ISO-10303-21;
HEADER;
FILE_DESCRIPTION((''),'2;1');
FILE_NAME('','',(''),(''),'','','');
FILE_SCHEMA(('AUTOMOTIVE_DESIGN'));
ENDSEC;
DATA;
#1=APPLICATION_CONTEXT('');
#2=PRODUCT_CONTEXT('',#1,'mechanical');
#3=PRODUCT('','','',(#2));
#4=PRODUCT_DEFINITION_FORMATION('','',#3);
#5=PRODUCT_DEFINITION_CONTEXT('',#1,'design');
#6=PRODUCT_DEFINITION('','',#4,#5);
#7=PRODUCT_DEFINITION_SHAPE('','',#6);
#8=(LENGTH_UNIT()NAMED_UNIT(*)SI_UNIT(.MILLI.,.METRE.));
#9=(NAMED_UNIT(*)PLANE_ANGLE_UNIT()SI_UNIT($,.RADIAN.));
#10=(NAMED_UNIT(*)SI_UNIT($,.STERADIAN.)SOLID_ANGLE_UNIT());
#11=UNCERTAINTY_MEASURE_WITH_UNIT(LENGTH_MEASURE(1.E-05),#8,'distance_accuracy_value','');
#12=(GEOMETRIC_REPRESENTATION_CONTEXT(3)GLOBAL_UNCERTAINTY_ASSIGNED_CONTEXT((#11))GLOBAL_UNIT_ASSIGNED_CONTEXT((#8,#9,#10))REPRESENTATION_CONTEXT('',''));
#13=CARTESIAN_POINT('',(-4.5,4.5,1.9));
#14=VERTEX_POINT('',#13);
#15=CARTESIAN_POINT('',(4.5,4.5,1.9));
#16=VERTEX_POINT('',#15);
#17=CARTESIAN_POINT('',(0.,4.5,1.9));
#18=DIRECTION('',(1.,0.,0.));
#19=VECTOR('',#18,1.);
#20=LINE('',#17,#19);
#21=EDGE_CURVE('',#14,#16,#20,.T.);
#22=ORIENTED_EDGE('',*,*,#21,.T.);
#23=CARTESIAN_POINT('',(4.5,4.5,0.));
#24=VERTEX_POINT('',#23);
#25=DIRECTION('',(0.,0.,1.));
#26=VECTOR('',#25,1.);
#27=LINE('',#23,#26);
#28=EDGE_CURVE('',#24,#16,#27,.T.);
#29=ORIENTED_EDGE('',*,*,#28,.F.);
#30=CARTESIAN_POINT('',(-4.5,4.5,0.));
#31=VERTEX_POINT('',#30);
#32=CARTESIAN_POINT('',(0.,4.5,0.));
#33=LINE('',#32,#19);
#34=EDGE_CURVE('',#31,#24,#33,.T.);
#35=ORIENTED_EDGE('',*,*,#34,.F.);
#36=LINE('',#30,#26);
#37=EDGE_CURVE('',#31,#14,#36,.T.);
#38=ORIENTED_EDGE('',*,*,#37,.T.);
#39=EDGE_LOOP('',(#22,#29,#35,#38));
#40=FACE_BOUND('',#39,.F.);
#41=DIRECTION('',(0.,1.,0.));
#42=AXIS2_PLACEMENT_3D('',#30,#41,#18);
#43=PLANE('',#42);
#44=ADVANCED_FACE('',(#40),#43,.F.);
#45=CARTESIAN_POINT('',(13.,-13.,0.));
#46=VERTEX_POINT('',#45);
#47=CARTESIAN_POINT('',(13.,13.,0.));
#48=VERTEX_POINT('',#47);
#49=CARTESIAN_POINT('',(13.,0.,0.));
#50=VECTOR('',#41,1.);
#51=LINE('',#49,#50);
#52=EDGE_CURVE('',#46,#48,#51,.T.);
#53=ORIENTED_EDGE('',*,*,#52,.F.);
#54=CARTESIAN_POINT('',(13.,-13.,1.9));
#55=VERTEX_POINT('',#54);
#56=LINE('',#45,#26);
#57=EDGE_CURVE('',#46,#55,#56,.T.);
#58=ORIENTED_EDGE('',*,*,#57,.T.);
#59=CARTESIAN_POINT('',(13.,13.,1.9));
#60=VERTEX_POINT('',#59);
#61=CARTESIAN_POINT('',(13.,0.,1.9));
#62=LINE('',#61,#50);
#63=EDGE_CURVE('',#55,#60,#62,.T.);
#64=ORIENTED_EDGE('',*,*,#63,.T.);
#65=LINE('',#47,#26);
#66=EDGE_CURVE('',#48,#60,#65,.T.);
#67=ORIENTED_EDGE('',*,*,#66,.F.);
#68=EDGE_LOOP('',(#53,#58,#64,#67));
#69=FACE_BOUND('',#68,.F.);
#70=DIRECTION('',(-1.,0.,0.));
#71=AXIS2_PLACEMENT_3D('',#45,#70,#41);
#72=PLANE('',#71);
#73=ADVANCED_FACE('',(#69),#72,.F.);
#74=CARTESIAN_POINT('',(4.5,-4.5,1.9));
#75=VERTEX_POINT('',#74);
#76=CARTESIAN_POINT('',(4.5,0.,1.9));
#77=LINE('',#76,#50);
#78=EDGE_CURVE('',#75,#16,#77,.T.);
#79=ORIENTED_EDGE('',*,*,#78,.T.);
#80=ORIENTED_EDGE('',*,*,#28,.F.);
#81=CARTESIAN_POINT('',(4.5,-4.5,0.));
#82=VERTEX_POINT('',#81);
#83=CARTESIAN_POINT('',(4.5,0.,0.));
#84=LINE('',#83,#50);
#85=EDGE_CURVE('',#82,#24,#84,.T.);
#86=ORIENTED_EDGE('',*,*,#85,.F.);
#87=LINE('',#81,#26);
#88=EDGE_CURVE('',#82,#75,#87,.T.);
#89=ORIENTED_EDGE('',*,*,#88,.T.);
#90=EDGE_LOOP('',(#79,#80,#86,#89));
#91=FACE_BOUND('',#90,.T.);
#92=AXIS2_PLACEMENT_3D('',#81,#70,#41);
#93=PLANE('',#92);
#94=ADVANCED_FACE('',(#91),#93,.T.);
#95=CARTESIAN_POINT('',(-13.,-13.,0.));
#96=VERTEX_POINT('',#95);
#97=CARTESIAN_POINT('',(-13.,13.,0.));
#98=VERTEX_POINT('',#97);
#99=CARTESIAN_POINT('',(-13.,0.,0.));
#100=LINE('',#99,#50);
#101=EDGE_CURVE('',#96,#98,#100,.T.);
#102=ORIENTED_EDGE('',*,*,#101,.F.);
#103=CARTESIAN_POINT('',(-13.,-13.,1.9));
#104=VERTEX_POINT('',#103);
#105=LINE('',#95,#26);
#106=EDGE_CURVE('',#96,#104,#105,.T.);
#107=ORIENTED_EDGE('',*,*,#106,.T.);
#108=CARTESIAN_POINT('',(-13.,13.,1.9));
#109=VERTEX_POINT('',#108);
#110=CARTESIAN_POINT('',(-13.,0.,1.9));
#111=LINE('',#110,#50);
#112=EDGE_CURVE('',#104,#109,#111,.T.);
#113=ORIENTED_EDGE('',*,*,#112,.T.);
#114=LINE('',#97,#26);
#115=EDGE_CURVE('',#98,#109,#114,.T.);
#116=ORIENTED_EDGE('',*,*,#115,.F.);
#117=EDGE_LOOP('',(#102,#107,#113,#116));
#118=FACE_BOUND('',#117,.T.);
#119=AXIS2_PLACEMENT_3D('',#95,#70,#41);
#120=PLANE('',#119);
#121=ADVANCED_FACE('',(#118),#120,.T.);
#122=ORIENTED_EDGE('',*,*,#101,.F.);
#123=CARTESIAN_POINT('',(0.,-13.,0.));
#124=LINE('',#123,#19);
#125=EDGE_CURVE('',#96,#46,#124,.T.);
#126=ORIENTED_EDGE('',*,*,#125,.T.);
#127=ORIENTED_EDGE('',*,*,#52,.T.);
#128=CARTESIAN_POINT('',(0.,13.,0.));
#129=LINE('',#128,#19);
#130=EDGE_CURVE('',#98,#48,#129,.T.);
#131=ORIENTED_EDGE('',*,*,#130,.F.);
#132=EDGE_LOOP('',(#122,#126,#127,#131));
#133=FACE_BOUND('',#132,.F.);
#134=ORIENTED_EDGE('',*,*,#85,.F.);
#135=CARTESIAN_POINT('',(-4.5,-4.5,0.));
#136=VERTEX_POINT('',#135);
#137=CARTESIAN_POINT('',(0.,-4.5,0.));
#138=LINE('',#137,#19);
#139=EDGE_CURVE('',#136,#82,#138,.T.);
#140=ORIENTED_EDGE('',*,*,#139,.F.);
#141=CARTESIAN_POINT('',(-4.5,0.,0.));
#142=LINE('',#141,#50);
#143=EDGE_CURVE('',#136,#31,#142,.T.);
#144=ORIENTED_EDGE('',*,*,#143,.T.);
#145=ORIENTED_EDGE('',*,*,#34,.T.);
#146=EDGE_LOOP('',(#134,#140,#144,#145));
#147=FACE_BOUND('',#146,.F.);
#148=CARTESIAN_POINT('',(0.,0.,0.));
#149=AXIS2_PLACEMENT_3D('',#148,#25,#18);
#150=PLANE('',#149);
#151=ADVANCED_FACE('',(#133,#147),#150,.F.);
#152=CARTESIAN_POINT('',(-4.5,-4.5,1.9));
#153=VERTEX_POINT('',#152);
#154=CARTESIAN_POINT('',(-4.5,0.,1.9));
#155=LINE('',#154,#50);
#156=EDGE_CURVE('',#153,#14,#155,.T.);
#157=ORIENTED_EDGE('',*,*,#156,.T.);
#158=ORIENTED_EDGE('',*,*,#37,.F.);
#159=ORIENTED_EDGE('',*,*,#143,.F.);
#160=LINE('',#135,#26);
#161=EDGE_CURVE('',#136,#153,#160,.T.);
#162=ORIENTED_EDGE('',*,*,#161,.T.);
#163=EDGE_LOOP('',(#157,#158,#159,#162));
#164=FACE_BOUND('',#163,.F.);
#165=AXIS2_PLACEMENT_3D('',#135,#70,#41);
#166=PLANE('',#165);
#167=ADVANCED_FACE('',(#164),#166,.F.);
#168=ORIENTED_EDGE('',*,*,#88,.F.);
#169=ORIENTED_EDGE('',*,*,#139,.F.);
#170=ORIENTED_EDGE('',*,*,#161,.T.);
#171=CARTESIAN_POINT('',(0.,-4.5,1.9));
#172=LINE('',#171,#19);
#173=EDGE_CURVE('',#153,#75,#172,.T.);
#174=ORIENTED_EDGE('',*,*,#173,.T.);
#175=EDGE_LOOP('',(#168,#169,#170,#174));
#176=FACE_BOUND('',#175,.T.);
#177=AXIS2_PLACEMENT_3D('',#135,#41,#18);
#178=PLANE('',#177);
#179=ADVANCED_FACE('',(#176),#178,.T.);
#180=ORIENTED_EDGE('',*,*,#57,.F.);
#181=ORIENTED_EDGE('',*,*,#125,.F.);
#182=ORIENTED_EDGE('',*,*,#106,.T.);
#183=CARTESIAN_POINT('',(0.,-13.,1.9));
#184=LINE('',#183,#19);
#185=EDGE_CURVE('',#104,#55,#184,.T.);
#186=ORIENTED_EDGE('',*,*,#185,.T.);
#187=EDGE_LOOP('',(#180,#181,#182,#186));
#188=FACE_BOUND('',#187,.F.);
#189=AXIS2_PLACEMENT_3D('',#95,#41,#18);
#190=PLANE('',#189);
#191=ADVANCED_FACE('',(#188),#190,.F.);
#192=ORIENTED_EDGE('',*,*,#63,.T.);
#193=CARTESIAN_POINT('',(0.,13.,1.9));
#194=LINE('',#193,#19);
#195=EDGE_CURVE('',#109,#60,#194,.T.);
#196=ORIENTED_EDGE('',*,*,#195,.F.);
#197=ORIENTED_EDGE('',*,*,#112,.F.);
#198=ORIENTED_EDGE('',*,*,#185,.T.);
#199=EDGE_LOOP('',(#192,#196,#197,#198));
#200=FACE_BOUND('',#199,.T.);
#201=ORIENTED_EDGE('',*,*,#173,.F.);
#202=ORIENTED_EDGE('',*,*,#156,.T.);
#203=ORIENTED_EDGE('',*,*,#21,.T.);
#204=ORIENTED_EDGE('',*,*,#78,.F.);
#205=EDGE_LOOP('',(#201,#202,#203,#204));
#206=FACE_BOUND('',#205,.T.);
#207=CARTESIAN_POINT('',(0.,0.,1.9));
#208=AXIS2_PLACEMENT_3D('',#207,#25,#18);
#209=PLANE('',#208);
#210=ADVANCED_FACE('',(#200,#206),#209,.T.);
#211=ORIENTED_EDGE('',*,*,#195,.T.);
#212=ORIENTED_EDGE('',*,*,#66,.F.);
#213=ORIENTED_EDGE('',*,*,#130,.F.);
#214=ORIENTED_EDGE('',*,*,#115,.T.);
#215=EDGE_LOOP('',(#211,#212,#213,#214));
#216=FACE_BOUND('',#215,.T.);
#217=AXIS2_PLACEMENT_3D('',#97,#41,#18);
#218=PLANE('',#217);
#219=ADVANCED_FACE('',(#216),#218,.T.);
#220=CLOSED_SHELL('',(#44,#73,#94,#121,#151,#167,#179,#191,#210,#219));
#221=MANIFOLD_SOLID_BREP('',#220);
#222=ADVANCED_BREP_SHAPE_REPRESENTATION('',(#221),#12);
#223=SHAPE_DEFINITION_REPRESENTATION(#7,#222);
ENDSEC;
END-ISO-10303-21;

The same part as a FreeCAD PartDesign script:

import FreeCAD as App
import Part
import Sketcher

V = App.Vector


def add_polygon(sketch, points):
    """Adds a closed chain of lines whose ends are joined by coincident constraints."""
    first, n = sketch.GeometryCount, len(points)
    for a, b in zip(points, points[1:] + points[:1]):
        sketch.addGeometry(Part.LineSegment(App.Vector(*a, 0), App.Vector(*b, 0)), False)
    for i in range(n):
        sketch.addConstraint(Sketcher.Constraint("Coincident", first + i, 2, first + (i + 1) % n, 1))

doc = App.newDocument("Part")
params = doc.addObject("Spreadsheet::Sheet", "Params")
for row, (alias, value) in enumerate([
    ("sketch1_width", "26 mm"),
    ("sketch1_width2", "9 mm"),
    ("pad1_length", "1.9 mm"),
], start=1):
    params.set(f"A{row}", alias)
    params.set(f"B{row}", "=" + value)
    params.setAlias(f"B{row}", alias)

body = doc.addObject("PartDesign::Body", "Body")

# Sketch on XY plane
sketch1 = body.newObject("Sketcher::SketchObject", "Sketch")
sketch1.AttachmentSupport = (doc.getObject("XY_Plane"), [""])
sketch1.MapMode = "FlatFace"
add_polygon(sketch1, [(-13, 13), (-13, -13), (13, -13), (13, 13)])  # lines 0-3
add_polygon(sketch1, [(4, -4), (-4, -4), (-4, 4), (4, 4)])  # lines 4-7
sketch1.addConstraint(Sketcher.Constraint("Vertical", 0))
sketch1.addConstraint(Sketcher.Constraint("Horizontal", 1))
sketch1.addConstraint(Sketcher.Constraint("Vertical", 2))
sketch1.addConstraint(Sketcher.Constraint("Horizontal", 3))
sketch1.addConstraint(Sketcher.Constraint("Horizontal", 4))
sketch1.addConstraint(Sketcher.Constraint("Vertical", 5))
sketch1.addConstraint(Sketcher.Constraint("Horizontal", 6))
sketch1.addConstraint(Sketcher.Constraint("Vertical", 7))
sketch1.addConstraint(Sketcher.Constraint("Symmetric", 0, 2, 2, 2, -1, 1))
sketch1.addConstraint(Sketcher.Constraint("Symmetric", 4, 2, 6, 2, -1, 1))
sketch1.addConstraint(Sketcher.Constraint("Equal", 3, 0))
sketch1.addConstraint(Sketcher.Constraint("Equal", 6, 5))
sketch1.addConstraint(Sketcher.Constraint("DistanceX", 1, 1, 1, 2, 26.0))
sketch1.addConstraint(Sketcher.Constraint("DistanceX", 4, 2, 4, 1, 9.0))
sketch1.setExpression("Constraints[20]", "Params.sketch1_width")
sketch1.setExpression("Constraints[21]", "Params.sketch1_width2")
pad1 = body.newObject("PartDesign::Pad", "Pad")
pad1.Profile = sketch1
pad1.setExpression("Length", "Params.pad1_length")

doc.recompute()
